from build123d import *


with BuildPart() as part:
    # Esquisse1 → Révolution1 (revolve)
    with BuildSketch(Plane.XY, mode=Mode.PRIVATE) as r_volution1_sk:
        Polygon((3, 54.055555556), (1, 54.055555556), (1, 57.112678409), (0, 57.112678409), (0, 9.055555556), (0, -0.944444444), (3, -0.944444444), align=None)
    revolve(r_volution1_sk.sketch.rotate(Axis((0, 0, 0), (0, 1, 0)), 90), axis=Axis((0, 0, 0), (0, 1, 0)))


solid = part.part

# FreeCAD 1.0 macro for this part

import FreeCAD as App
import Part
import Sketcher
Q = App.Units.Quantity

doc = App.newDocument("Part")
params = doc.addObject("Spreadsheet::Sheet", "Params")
for row, (alias, value) in enumerate([
    ("sketch1_width", "2 mm"),
    ("sketch1_width2", "1 mm"),
    ("sketch1_height", "55 mm"),
    ("revolution_angle", "360 deg"),
], start=1):
    params.set(f"A{row}", alias)
    params.set(f"B{row}", "=" + value)
    params.setAlias(f"B{row}", alias)

body = doc.addObject("PartDesign::Body", "Body")

# Sketch on XY plane
sketch1 = doc.addObject("Sketcher::SketchObject", "Sketch")
body.addObject(sketch1)
sketch1.AttachmentSupport = (doc.XY_Plane, [""])
sketch1.MapMode = "FlatFace"
sketch1.addGeometry(Part.LineSegment(App.Vector(3, 54.1, 0), App.Vector(1, 54.1, 0)), False)
sketch1.addGeometry(Part.LineSegment(App.Vector(1, 54.1, 0), App.Vector(1, 57.1, 0)), False)
sketch1.addGeometry(Part.LineSegment(App.Vector(1, 57.1, 0), App.Vector(0, 57.1, 0)), False)
sketch1.addGeometry(Part.LineSegment(App.Vector(0, 57.1, 0), App.Vector(0, -0.9, 0)), False)
sketch1.addGeometry(Part.LineSegment(App.Vector(0, -0.9, 0), App.Vector(3, -0.9, 0)), False)
sketch1.addGeometry(Part.LineSegment(App.Vector(3, -0.9, 0), App.Vector(3, 54.1, 0)), False)
sketch1.addConstraint(Sketcher.Constraint("Coincident", 0, 2, 1, 1))
sketch1.addConstraint(Sketcher.Constraint("Coincident", 1, 2, 2, 1))
sketch1.addConstraint(Sketcher.Constraint("Coincident", 2, 2, 3, 1))
sketch1.addConstraint(Sketcher.Constraint("Coincident", 3, 2, 4, 1))
sketch1.addConstraint(Sketcher.Constraint("Coincident", 4, 2, 5, 1))
sketch1.addConstraint(Sketcher.Constraint("Coincident", 5, 2, 0, 1))
sketch1.addConstraint(Sketcher.Constraint("Horizontal", 0))
sketch1.addConstraint(Sketcher.Constraint("Vertical", 1))
sketch1.addConstraint(Sketcher.Constraint("Horizontal", 2))
sketch1.addConstraint(Sketcher.Constraint("Vertical", 3))
sketch1.addConstraint(Sketcher.Constraint("Horizontal", 4))
sketch1.addConstraint(Sketcher.Constraint("Vertical", 5))
sketch1.addConstraint(Sketcher.Constraint("PointOnObject", 2, 2, -2))
sketch1.addConstraint(Sketcher.Constraint("DistanceX", 0, 2, 0, 1, Q("2 mm")))
sketch1.addConstraint(Sketcher.Constraint("DistanceX", 2, 2, 2, 1, Q("1 mm")))
sketch1.addConstraint(Sketcher.Constraint("DistanceY", 5, 1, 5, 2, Q("55 mm")))
sketch1.addConstraint(Sketcher.Constraint("DistanceY", 1, 1, 1, 2, Q("3.057123 mm")))
sketch1.addConstraint(Sketcher.Constraint("DistanceY", -1, 1, 1, 2, Q("57.112678 mm")))
sketch1.setExpression("Constraints[13]", "Params.sketch1_width")
sketch1.setExpression("Constraints[14]", "Params.sketch1_width2")
sketch1.setExpression("Constraints[15]", "Params.sketch1_height")
revolution = doc.addObject("PartDesign::Revolution", "Revolution")
body.addObject(revolution)
revolution.Profile = sketch1
revolution.ReferenceAxis = (sketch1, ["V_Axis"])
revolution.setExpression("Angle", "Params.revolution_angle")

doc.recompute()
